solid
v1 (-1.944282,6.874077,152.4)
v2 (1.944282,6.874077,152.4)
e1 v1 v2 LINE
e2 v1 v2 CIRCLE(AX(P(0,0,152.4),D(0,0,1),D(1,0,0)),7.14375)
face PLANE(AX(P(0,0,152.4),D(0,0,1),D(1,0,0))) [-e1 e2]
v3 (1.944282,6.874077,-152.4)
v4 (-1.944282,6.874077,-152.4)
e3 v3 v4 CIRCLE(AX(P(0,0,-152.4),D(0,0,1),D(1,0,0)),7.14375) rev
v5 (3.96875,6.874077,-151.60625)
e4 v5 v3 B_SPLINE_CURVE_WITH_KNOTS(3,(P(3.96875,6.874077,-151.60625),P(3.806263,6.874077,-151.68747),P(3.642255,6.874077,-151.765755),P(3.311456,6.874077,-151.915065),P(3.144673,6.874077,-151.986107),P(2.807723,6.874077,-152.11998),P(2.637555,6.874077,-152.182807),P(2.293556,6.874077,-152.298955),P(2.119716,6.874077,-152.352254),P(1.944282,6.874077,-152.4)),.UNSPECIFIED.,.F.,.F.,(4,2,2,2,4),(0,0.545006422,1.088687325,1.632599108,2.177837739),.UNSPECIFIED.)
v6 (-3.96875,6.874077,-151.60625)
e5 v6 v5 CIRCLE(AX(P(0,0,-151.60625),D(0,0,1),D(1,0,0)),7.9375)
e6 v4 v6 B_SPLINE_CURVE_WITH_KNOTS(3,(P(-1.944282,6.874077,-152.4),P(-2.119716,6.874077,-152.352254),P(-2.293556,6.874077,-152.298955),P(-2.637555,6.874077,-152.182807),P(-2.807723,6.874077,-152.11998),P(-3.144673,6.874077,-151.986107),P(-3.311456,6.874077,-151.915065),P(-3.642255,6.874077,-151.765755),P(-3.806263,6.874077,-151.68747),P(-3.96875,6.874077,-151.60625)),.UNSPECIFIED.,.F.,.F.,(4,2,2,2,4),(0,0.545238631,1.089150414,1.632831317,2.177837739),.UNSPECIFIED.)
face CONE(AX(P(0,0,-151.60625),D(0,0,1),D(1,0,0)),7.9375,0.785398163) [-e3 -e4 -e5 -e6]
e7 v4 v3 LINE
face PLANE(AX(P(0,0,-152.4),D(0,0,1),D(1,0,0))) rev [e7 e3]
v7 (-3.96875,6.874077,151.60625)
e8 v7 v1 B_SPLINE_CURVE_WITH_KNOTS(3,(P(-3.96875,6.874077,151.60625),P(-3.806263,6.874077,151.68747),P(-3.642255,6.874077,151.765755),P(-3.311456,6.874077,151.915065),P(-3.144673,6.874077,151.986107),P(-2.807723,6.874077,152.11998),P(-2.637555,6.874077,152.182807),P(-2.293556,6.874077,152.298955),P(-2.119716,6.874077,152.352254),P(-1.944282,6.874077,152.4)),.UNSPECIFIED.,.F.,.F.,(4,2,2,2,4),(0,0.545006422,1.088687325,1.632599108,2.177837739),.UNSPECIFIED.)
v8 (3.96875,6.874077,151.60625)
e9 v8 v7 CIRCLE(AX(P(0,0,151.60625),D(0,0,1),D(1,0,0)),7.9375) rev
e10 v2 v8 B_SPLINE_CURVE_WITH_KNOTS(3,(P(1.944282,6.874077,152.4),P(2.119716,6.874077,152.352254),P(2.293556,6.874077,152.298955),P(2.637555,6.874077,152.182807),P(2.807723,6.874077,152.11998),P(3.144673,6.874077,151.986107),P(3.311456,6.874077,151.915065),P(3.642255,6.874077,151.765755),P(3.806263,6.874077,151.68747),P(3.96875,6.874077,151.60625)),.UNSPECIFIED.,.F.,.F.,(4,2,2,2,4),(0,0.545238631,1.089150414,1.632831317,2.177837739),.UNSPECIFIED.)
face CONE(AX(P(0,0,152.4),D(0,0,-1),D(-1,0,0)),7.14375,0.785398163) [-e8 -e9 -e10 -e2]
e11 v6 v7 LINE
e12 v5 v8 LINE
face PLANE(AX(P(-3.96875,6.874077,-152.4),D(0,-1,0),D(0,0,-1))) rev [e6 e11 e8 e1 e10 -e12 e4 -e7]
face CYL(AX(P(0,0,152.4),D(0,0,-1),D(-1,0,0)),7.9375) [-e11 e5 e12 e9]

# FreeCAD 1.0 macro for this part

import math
import FreeCAD as App
import Part
import Sketcher
Q = App.Units.Quantity


def edges_at(feature, points):
    """Names of the edges that pass closest to the given points."""
    edges = feature.Shape.Edges
    near = lambda p: min(range(len(edges)), key=lambda i: edges[i].distToShape(Part.Vertex(*p))[0])
    return sorted({f"Edge{near(p) + 1}" for p in points})

doc = App.newDocument("Part")
params = doc.addObject("Spreadsheet::Sheet", "Params")
for row, (alias, value) in enumerate([
    ("sketch1_diameter", "0.625 in"),
    ("pad1_length", "6 in"),
    ("pad1_length2", "6 in"),
    ("sketch2_radius", "0.3125 in"),
    ("sketch2_width", "0.3125 in"),
    ("chamfer_size", "0.03125 in"),
], start=1):
    params.set(f"A{row}", alias)
    params.set(f"B{row}", "=" + value)
    params.setAlias(f"B{row}", alias)

body = doc.addObject("PartDesign::Body", "Body")

# Sketch on XY plane
sketch1 = body.newObject("Sketcher::SketchObject", "Sketch")
sketch1.AttachmentSupport = (doc.getObject("XY_Plane"), [""])
sketch1.MapMode = "FlatFace"
sketch1.addGeometry(Part.Circle(App.Vector(0, 0, 0), App.Vector(0, 0, 1), 8), False)
sketch1.addConstraint(Sketcher.Constraint("Coincident", 0, 3, -1, 1))
sketch1.addConstraint(Sketcher.Constraint("Diameter", 0, Q("0.625 in")))
sketch1.setExpression("Constraints[1]", "Params.sketch1_diameter")
pad1 = body.newObject("PartDesign::Pad", "Pad")
pad1.Profile = sketch1
pad1.Type = "TwoLengths"
pad1.setExpression("Length", "Params.pad1_length")
pad1.setExpression("Length2", "Params.pad1_length2")

# Sketch on XY plane
sketch2 = body.newObject("Sketcher::SketchObject", "Sketch001")
sketch2.AttachmentSupport = (doc.getObject("XY_Plane"), [""])
sketch2.MapMode = "FlatFace"
sketch2.addGeometry(Part.LineSegment(App.Vector(-4, 7, 0), App.Vector(4, 7, 0)), False)
sketch2.addGeometry(Part.ArcOfCircle(Part.Circle(App.Vector(0, 0, 0), App.Vector(0, 0, 1), 8), math.radians(60), math.radians(120)), False)
sketch2.addConstraint(Sketcher.Constraint("Coincident", 0, 1, 1, 2))
sketch2.addConstraint(Sketcher.Constraint("Coincident", 1, 1, 0, 2))
sketch2.addConstraint(Sketcher.Constraint("Horizontal", 0))
sketch2.addConstraint(Sketcher.Constraint("Coincident", 1, 3, -1, 1))
sketch2.addConstraint(Sketcher.Constraint("Radius", 1, Q("0.3125 in")))
sketch2.addConstraint(Sketcher.Constraint("DistanceX", 0, 1, 0, 2, Q("0.3125 in")))
sketch2.setExpression("Constraints[4]", "Params.sketch2_radius")
sketch2.setExpression("Constraints[5]", "Params.sketch2_width")
pocket1 = body.newObject("PartDesign::Pocket", "Pocket")
pocket1.Profile = sketch2
pocket1.Type = "ThroughAll"
pocket1.Midplane = True
doc.recompute()

chamfer = body.newObject("PartDesign::Chamfer", "Chamfer")
chamfer.Base = (pocket1, edges_at(pocket1, [(0, -7.938, -152.4), (0, -7.938, 152.4)]))
chamfer.setExpression("Size", "Params.chamfer_size")

doc.recompute()
